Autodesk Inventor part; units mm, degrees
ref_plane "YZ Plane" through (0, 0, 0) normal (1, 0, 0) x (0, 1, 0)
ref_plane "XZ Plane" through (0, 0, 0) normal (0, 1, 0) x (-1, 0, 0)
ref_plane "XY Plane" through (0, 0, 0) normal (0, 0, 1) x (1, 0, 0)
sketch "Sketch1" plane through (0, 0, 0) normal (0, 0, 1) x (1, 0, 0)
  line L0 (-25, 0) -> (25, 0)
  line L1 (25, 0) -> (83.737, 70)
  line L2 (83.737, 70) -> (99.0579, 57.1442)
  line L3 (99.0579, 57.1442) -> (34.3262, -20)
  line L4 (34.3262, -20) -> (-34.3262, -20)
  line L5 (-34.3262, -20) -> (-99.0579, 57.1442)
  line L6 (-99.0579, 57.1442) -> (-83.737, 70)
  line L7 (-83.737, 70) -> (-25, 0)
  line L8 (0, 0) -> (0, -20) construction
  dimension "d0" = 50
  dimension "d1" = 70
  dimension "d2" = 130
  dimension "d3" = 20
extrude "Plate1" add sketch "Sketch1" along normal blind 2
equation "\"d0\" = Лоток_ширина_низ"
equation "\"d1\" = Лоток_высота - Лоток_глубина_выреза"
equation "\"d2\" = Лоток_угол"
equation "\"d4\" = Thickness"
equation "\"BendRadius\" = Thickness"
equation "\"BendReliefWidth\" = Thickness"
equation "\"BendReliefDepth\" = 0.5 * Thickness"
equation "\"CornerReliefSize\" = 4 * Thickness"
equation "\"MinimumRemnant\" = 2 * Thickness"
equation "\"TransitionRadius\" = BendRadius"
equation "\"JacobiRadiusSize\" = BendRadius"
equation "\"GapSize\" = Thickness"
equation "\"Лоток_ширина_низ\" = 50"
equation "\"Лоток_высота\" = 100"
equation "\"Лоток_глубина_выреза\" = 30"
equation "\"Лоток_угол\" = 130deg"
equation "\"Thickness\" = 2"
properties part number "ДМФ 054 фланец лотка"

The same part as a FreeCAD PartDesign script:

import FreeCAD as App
import Part
import Sketcher

V = App.Vector
Q = App.Units.Quantity


def add_polygon(sketch, points):
    """Adds a closed chain of lines whose ends are joined by coincident constraints."""
    first, n = sketch.GeometryCount, len(points)
    for a, b in zip(points, points[1:] + points[:1]):
        sketch.addGeometry(Part.LineSegment(App.Vector(*a, 0), App.Vector(*b, 0)), False)
    for i in range(n):
        sketch.addConstraint(Sketcher.Constraint("Coincident", first + i, 2, first + (i + 1) % n, 1))

doc = App.newDocument("Part")
body = doc.addObject("PartDesign::Body", "Body")

sketch1 = body.newObject("Sketcher::SketchObject", "Sketch")
sketch1.AttachmentSupport = (doc.getObject("XY_Plane"), [""])
sketch1.MapMode = "FlatFace"
add_polygon(sketch1, [(25, 0), (-25, 0), (-83.737, 70), (-99.0579, 57.1442), (-34.3262, -20), (34.3262, -20), (99.0579, 57.1442), (83.737, 70)])
sketch1.addConstraint([
    Sketcher.Constraint("Horizontal", 0),
    Sketcher.Constraint("Horizontal", 4),
    Sketcher.Constraint("Symmetric", 0, 2, 7, 2, -1, 1),
    Sketcher.Constraint("Symmetric", 2, 2, 5, 2, -2),
    Sketcher.Constraint("Symmetric", 1, 2, 6, 2, -2),
    Sketcher.Constraint("Perpendicular", 1, 2),
    Sketcher.Constraint("Perpendicular", 2, 3),
    Sketcher.Constraint("Perpendicular", 5, 6),
    Sketcher.Constraint("DistanceX", 0, 2, 0, 1, 50.0),
    Sketcher.Constraint("Angle", 1, Q("130 deg")),
    Sketcher.Constraint("Distance", 2, 20.0),
    Sketcher.Constraint("DistanceY", -1, 1, 1, 2, 70.0),
    Sketcher.Constraint("DistanceY", 3, 2, -1, 1, 20.0),
])
pad1 = body.newObject("PartDesign::Pad", "Pad")
pad1.Profile = sketch1
pad1.Length = 2

doc.recompute()
